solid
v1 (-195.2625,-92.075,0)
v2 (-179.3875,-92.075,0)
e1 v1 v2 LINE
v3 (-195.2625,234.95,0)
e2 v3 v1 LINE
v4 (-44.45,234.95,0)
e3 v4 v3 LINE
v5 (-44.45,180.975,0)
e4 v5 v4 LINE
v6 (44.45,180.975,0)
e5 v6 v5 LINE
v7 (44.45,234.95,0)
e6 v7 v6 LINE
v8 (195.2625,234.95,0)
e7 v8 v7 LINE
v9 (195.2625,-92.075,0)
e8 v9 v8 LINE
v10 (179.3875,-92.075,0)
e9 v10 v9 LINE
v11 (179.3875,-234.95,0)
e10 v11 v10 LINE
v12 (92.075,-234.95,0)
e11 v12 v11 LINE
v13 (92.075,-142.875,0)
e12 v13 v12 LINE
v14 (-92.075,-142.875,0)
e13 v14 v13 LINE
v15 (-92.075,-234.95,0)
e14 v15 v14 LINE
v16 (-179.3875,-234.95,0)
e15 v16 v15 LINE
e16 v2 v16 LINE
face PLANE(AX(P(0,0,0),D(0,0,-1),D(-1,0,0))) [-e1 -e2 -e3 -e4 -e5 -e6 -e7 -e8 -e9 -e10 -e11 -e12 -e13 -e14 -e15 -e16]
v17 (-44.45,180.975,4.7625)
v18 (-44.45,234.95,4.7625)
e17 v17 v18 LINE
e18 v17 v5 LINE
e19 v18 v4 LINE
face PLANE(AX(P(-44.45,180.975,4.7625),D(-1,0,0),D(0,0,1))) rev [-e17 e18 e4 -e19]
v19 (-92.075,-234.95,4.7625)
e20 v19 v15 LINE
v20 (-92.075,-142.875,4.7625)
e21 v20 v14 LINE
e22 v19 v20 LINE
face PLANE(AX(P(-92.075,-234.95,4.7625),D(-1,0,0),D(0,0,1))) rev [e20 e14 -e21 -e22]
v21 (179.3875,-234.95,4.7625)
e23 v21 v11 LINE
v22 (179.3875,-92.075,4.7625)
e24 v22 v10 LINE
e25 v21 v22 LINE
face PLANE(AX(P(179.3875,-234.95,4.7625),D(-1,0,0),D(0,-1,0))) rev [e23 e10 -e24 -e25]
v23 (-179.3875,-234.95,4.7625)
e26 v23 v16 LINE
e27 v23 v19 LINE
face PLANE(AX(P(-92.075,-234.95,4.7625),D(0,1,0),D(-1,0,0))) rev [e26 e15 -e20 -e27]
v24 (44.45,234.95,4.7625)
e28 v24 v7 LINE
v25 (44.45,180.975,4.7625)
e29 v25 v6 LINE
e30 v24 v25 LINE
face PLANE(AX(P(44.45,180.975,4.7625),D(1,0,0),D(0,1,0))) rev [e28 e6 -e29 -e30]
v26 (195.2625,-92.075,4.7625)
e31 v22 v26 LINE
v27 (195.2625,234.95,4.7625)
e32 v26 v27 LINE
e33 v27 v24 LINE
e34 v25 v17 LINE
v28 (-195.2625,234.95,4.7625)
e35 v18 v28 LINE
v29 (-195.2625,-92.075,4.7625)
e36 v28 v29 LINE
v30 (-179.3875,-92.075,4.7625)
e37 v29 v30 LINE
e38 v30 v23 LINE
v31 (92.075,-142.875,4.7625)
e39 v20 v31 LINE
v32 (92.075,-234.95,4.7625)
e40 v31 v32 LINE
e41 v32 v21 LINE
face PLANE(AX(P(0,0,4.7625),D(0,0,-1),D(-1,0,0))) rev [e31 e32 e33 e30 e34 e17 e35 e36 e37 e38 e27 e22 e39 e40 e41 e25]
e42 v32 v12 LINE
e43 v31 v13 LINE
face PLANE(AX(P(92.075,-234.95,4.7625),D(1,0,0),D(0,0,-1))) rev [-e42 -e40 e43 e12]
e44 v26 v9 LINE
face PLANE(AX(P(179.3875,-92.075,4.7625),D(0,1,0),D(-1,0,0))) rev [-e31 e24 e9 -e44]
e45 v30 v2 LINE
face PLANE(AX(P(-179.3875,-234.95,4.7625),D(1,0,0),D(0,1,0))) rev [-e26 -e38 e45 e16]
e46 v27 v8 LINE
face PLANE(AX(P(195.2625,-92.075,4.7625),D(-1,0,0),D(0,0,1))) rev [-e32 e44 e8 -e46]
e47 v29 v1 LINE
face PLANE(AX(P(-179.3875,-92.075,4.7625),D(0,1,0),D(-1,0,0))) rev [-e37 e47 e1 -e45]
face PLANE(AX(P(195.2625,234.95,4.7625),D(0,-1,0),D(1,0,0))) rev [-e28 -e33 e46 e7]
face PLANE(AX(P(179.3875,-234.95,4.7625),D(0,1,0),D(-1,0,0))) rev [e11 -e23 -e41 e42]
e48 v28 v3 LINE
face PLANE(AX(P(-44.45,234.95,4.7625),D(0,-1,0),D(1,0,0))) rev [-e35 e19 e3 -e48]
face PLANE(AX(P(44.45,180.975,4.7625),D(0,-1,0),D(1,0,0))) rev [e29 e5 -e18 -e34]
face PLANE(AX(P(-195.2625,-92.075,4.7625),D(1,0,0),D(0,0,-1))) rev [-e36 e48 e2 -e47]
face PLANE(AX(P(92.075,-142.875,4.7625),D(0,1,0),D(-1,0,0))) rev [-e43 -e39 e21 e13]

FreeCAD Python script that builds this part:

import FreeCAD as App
import Part
import Sketcher
from FreeCAD import Vector
Q = App.Units.Quantity


def add_polygon(sketch, points):
    """Adds a closed chain of lines whose ends are joined by coincident constraints."""
    first, n = sketch.GeometryCount, len(points)
    for a, b in zip(points, points[1:] + points[:1]):
        sketch.addGeometry(Part.LineSegment(App.Vector(*a, 0), App.Vector(*b, 0)), False)
    for i in range(n):
        sketch.addConstraint(Sketcher.Constraint("Coincident", first + i, 2, first + (i + 1) % n, 1))

doc = App.newDocument("Part")
body = doc.addObject("PartDesign::Body", "Body")

# Sketch on XY plane
sketch1 = body.newObject("Sketcher::SketchObject", "Sketch")
sketch1.AttachmentSupport = (doc.getObject("XY_Plane"), [""])
sketch1.MapMode = "FlatFace"
add_polygon(sketch1, [(-179, -235), (-92, -235), (-92, -143), (92, -143), (92, -235), (179, -235), (179, -92), (195, -92), (195, 235), (44, 235), (44, 181), (-44, 181), (-44, 235), (-195, 235), (-195, -92), (-179, -92)])  # lines 0-15
sketch1.addConstraint([
    Sketcher.Constraint("Horizontal", 0),
    Sketcher.Constraint("Vertical", 1),
    Sketcher.Constraint("Horizontal", 2),
    Sketcher.Constraint("Vertical", 3),
    Sketcher.Constraint("Horizontal", 4),
    Sketcher.Constraint("Vertical", 5),
    Sketcher.Constraint("Horizontal", 6),
    Sketcher.Constraint("Vertical", 7),
    Sketcher.Constraint("Horizontal", 8),
    Sketcher.Constraint("Vertical", 9),
    Sketcher.Constraint("Horizontal", 10),
    Sketcher.Constraint("Vertical", 11),
    Sketcher.Constraint("Horizontal", 12),
    Sketcher.Constraint("Vertical", 13),
    Sketcher.Constraint("Horizontal", 14),
    Sketcher.Constraint("Vertical", 15),
    Sketcher.Constraint("Symmetric", 0, 2, 3, 2, -2),
    Sketcher.Constraint("Symmetric", 8, 2, 11, 2, -2),
    Sketcher.Constraint("Symmetric", 6, 2, 13, 2, -2),
    Sketcher.Constraint("Equal", 0, 4),
    Sketcher.Constraint("DistanceX", 10, 2, 10, 1, Q("3.5 in")),
    Sketcher.Constraint("DistanceY", 2, 2, 5, 2, Q("2 in")),
    Sketcher.Constraint("DistanceX", 2, 1, 2, 2, Q("7.25 in")),
    Sketcher.Constraint("DistanceY", 4, 2, 7, 2, Q("18.5 in")),
    Sketcher.Constraint("DistanceX", 0, 1, 0, 2, Q("3.4375 in")),
    Sketcher.Constraint("DistanceX", 6, 1, 6, 2, Q("0.625 in")),
    Sketcher.Constraint("DistanceY", 1, 1, 1, 2, Q("3.625 in")),
    Sketcher.Constraint("DistanceY", 9, 2, 9, 1, Q("2.125 in")),
    Sketcher.Constraint("DistanceY", 0, 2, -1, 1, Q("9.25 in")),
])
pad1 = body.newObject("PartDesign::Pad", "Pad")
pad1.Profile = sketch1
pad1.Length = Q("0.1875 in")

doc.recompute()
